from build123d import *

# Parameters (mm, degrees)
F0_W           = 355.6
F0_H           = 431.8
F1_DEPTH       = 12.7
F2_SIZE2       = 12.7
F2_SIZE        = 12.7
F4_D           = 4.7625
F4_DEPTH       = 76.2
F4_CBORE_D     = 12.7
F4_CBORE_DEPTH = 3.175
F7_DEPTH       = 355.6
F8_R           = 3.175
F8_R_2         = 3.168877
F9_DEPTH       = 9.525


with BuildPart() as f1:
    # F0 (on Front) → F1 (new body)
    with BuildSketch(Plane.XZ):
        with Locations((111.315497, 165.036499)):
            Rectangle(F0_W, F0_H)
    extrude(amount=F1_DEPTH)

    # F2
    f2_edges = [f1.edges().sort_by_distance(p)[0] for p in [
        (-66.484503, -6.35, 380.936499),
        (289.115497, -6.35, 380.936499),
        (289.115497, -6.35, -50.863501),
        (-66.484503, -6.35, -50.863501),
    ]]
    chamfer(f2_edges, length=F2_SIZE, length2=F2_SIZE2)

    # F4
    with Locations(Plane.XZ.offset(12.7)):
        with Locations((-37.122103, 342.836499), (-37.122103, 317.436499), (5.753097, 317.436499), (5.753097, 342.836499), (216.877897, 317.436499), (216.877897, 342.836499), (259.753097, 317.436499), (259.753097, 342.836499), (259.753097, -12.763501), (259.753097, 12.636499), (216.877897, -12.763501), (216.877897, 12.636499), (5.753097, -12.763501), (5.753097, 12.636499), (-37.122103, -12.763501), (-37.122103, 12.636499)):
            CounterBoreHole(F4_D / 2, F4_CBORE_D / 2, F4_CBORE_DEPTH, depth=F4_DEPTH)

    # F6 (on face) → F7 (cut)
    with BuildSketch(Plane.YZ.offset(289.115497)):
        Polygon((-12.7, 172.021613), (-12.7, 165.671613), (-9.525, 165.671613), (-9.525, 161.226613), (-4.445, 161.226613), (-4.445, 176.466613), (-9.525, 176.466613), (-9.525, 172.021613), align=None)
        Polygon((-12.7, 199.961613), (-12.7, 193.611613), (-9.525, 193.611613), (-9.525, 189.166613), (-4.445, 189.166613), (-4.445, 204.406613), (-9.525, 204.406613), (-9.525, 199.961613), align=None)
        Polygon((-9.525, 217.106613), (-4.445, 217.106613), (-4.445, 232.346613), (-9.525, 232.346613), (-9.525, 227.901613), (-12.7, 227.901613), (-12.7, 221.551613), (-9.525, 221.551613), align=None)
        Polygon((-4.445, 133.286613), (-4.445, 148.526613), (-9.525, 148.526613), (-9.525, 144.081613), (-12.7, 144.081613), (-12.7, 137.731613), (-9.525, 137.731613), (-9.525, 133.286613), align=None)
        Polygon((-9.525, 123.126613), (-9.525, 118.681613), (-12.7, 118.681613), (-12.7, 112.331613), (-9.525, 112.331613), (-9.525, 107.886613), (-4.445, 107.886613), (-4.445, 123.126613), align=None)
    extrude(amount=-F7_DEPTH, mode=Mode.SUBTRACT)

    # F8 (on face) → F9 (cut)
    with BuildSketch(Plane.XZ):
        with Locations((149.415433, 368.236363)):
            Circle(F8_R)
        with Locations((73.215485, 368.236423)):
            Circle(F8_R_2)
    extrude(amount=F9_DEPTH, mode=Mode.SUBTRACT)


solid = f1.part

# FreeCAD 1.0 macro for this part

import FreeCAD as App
import Part
import Sketcher

V = App.Vector
Q = App.Units.Quantity


def edges_at(feature, points):
    """Names of the edges that pass closest to the given points."""
    edges = feature.Shape.Edges
    near = lambda p: min(range(len(edges)), key=lambda i: edges[i].distToShape(Part.Vertex(*p))[0])
    return sorted({f"Edge{near(p) + 1}" for p in points})

doc = App.newDocument("Part")
body = doc.addObject("PartDesign::Body", "Body")

sketch1 = doc.addObject("Sketcher::SketchObject", "Sketch")
body.addObject(sketch1)
sketch1.AttachmentSupport = (doc.XZ_Plane, [""])
sketch1.MapMode = "FlatFace"
sketch1.addGeometry(Part.LineSegment(V(-66, 381, 0), V(-66, -51, 0)), False)
sketch1.addGeometry(Part.LineSegment(V(-66, -51, 0), V(289, -51, 0)), False)
sketch1.addGeometry(Part.LineSegment(V(289, -51, 0), V(289, 381, 0)), False)
sketch1.addGeometry(Part.LineSegment(V(289, 381, 0), V(-66, 381, 0)), False)
sketch1.addConstraint(Sketcher.Constraint("Coincident", 0, 2, 1, 1))
sketch1.addConstraint(Sketcher.Constraint("Coincident", 1, 2, 2, 1))
sketch1.addConstraint(Sketcher.Constraint("Coincident", 2, 2, 3, 1))
sketch1.addConstraint(Sketcher.Constraint("Coincident", 3, 2, 0, 1))
sketch1.addConstraint(Sketcher.Constraint("Vertical", 0))
sketch1.addConstraint(Sketcher.Constraint("Horizontal", 1))
sketch1.addConstraint(Sketcher.Constraint("Vertical", 2))
sketch1.addConstraint(Sketcher.Constraint("Horizontal", 3))
sketch1.addConstraint(Sketcher.Constraint("DistanceX", 1, 1, 1, 2, Q("14 in")))
sketch1.addConstraint(Sketcher.Constraint("DistanceY", 0, 2, 0, 1, Q("17 in")))
sketch1.addConstraint(Sketcher.Constraint("DistanceX", 0, 2, -1, 1, Q("2.6175001 in")))
sketch1.addConstraint(Sketcher.Constraint("DistanceY", 0, 2, -1, 1, Q("2.0025 in")))
pad1 = doc.addObject("PartDesign::Pad", "Pad")
body.addObject(pad1)
pad1.Profile = sketch1
pad1.Length = Q("0.5 in")
doc.recompute()

chamfer = doc.addObject("PartDesign::Chamfer", "Chamfer")
body.addObject(chamfer)
chamfer.Base = (pad1, edges_at(pad1, [
    (-66.485, -6.35, 380.936),
    (289.115, -6.35, 380.936),
    (289.115, -6.35, -50.864),
    (-66.485, -6.35, -50.864),
]))
chamfer.ChamferType = "Two distances"
chamfer.Size = Q("0.5 in")
chamfer.Size2 = Q("0.5 in")

sketch2 = doc.addObject("Sketcher::SketchObject", "Sketch001")
body.addObject(sketch2)
sketch2.AttachmentSupport = (doc.XZ_Plane, [""])
sketch2.MapMode = "FlatFace"
sketch2.AttachmentOffset = App.Placement(V(0, 0, 0.5 * 25.4), App.Rotation())
sketch2.addGeometry(Part.Circle(V(-37.1, 342.8, 0), V(0, 0, 1), 2.4), False)
sketch2.addGeometry(Part.Circle(V(-37.1, 317.4, 0), V(0, 0, 1), 2.4), False)
sketch2.addGeometry(Part.Circle(V(5.8, 317.4, 0), V(0, 0, 1), 2.4), False)
sketch2.addGeometry(Part.Circle(V(5.8, 342.8, 0), V(0, 0, 1), 2.4), False)
sketch2.addGeometry(Part.Circle(V(216.9, 317.4, 0), V(0, 0, 1), 2.4), False)
sketch2.addGeometry(Part.Circle(V(216.9, 342.8, 0), V(0, 0, 1), 2.4), False)
sketch2.addGeometry(Part.Circle(V(259.8, 317.4, 0), V(0, 0, 1), 2.4), False)
sketch2.addGeometry(Part.Circle(V(259.8, 342.8, 0), V(0, 0, 1), 2.4), False)
sketch2.addGeometry(Part.Circle(V(259.8, -12.8, 0), V(0, 0, 1), 2.4), False)
sketch2.addGeometry(Part.Circle(V(259.8, 12.6, 0), V(0, 0, 1), 2.4), False)
sketch2.addGeometry(Part.Circle(V(216.9, -12.8, 0), V(0, 0, 1), 2.4), False)
sketch2.addGeometry(Part.Circle(V(216.9, 12.6, 0), V(0, 0, 1), 2.4), False)
sketch2.addGeometry(Part.Circle(V(5.8, -12.8, 0), V(0, 0, 1), 2.4), False)
sketch2.addGeometry(Part.Circle(V(5.8, 12.6, 0), V(0, 0, 1), 2.4), False)
sketch2.addGeometry(Part.Circle(V(-37.1, -12.8, 0), V(0, 0, 1), 2.4), False)
sketch2.addGeometry(Part.Circle(V(-37.1, 12.6, 0), V(0, 0, 1), 2.4), False)
sketch2.addConstraint(Sketcher.Constraint("Equal", 0, 1))
sketch2.addConstraint(Sketcher.Constraint("Equal", 1, 2))
sketch2.addConstraint(Sketcher.Constraint("Equal", 2, 3))
sketch2.addConstraint(Sketcher.Constraint("Equal", 3, 4))
sketch2.addConstraint(Sketcher.Constraint("Equal", 4, 5))
sketch2.addConstraint(Sketcher.Constraint("Equal", 5, 6))
sketch2.addConstraint(Sketcher.Constraint("Equal", 6, 7))
sketch2.addConstraint(Sketcher.Constraint("Equal", 7, 8))
sketch2.addConstraint(Sketcher.Constraint("Equal", 8, 9))
sketch2.addConstraint(Sketcher.Constraint("Equal", 9, 10))
sketch2.addConstraint(Sketcher.Constraint("Equal", 10, 11))
sketch2.addConstraint(Sketcher.Constraint("Equal", 11, 12))
sketch2.addConstraint(Sketcher.Constraint("Equal", 12, 13))
sketch2.addConstraint(Sketcher.Constraint("Equal", 13, 14))
sketch2.addConstraint(Sketcher.Constraint("Equal", 14, 15))
sketch2.addConstraint(Sketcher.Constraint("Horizontal", 1, 3, 2, 3))
sketch2.addConstraint(Sketcher.Constraint("Horizontal", 0, 3, 3, 3))
sketch2.addConstraint(Sketcher.Constraint("Horizontal", 2, 3, 4, 3))
sketch2.addConstraint(Sketcher.Constraint("Horizontal", 3, 3, 5, 3))
sketch2.addConstraint(Sketcher.Constraint("Horizontal", 4, 3, 6, 3))
sketch2.addConstraint(Sketcher.Constraint("Horizontal", 5, 3, 7, 3))
sketch2.addConstraint(Sketcher.Constraint("Horizontal", 8, 3, 10, 3))
sketch2.addConstraint(Sketcher.Constraint("Horizontal", 9, 3, 11, 3))
sketch2.addConstraint(Sketcher.Constraint("Horizontal", 10, 3, 12, 3))
sketch2.addConstraint(Sketcher.Constraint("Horizontal", 11, 3, 13, 3))
sketch2.addConstraint(Sketcher.Constraint("Horizontal", 12, 3, 14, 3))
sketch2.addConstraint(Sketcher.Constraint("Horizontal", 13, 3, 15, 3))
sketch2.addConstraint(Sketcher.Constraint("Vertical", 0, 3, 1, 3))
sketch2.addConstraint(Sketcher.Constraint("Vertical", 2, 3, 3, 3))
sketch2.addConstraint(Sketcher.Constraint("Vertical", 4, 3, 5, 3))
sketch2.addConstraint(Sketcher.Constraint("Vertical", 6, 3, 7, 3))
sketch2.addConstraint(Sketcher.Constraint("Vertical", 7, 3, 8, 3))
sketch2.addConstraint(Sketcher.Constraint("Vertical", 8, 3, 9, 3))
sketch2.addConstraint(Sketcher.Constraint("Vertical", 5, 3, 10, 3))
sketch2.addConstraint(Sketcher.Constraint("Vertical", 10, 3, 11, 3))
sketch2.addConstraint(Sketcher.Constraint("Vertical", 3, 3, 12, 3))
sketch2.addConstraint(Sketcher.Constraint("Vertical", 12, 3, 13, 3))
sketch2.addConstraint(Sketcher.Constraint("Vertical", 1, 3, 14, 3))
sketch2.addConstraint(Sketcher.Constraint("Vertical", 14, 3, 15, 3))
sketch2.addConstraint(Sketcher.Constraint("Diameter", 0, Q("0.1875 in")))
sketch2.addConstraint(Sketcher.Constraint("DistanceY", 1, 3, 0, 3, Q("1 in")))
sketch2.addConstraint(Sketcher.Constraint("DistanceX", 1, 3, 4, 3, Q("10 in")))
sketch2.addConstraint(Sketcher.Constraint("DistanceX", 2, 3, 6, 3, Q("10 in")))
sketch2.addConstraint(Sketcher.Constraint("DistanceY", 8, 3, 6, 3, Q("13 in")))
sketch2.addConstraint(Sketcher.Constraint("DistanceY", 8, 3, 9, 3, Q("1 in")))
sketch2.addConstraint(Sketcher.Constraint("DistanceX", 1, 3, 2, 3, Q("1.688 in")))
sketch2.addConstraint(Sketcher.Constraint("DistanceX", 0, 3, -1, 1, Q("1.4615001 in")))
sketch2.addConstraint(Sketcher.Constraint("DistanceY", -1, 1, 0, 3, Q("13.4975 in")))
doc.recompute()
hole = doc.addObject("PartDesign::Hole", "Hole")
body.addObject(hole)
hole.Profile = sketch2
hole.ThreadType = "None"
hole.Diameter = Q("0.1875 in")
hole.DepthType = "Dimension"
hole.Depth = Q("3 in")
hole.DrillPoint = "Flat"
hole.HoleCutType = "Counterbore"
hole.HoleCutDiameter = Q("0.5 in")
hole.HoleCutDepth = Q("0.125 in")

sketch3 = doc.addObject("Sketcher::SketchObject", "Sketch002")
body.addObject(sketch3)
sketch3.AttachmentSupport = (doc.YZ_Plane, [""])
sketch3.MapMode = "FlatFace"
sketch3.AttachmentOffset = App.Placement(V(0, 0, 11.3824999 * 25.4), App.Rotation())
sketch3.addGeometry(Part.LineSegment(V(-12.7, 172, 0), V(-12.7, 165.7, 0)), False)
sketch3.addGeometry(Part.LineSegment(V(-12.7, 165.7, 0), V(-9.5, 165.7, 0)), False)
sketch3.addGeometry(Part.LineSegment(V(-9.5, 165.7, 0), V(-9.5, 161.2, 0)), False)
sketch3.addGeometry(Part.LineSegment(V(-9.5, 161.2, 0), V(-4.4, 161.2, 0)), False)
sketch3.addGeometry(Part.LineSegment(V(-4.4, 161.2, 0), V(-4.4, 176.5, 0)), False)
sketch3.addGeometry(Part.LineSegment(V(-4.4, 176.5, 0), V(-9.5, 176.5, 0)), False)
sketch3.addGeometry(Part.LineSegment(V(-9.5, 176.5, 0), V(-9.5, 172, 0)), False)
sketch3.addGeometry(Part.LineSegment(V(-9.5, 172, 0), V(-12.7, 172, 0)), False)
sketch3.addGeometry(Part.LineSegment(V(-12.7, 200, 0), V(-12.7, 193.6, 0)), False)
sketch3.addGeometry(Part.LineSegment(V(-12.7, 193.6, 0), V(-9.5, 193.6, 0)), False)
sketch3.addGeometry(Part.LineSegment(V(-9.5, 193.6, 0), V(-9.5, 189.2, 0)), False)
sketch3.addGeometry(Part.LineSegment(V(-9.5, 189.2, 0), V(-4.4, 189.2, 0)), False)
sketch3.addGeometry(Part.LineSegment(V(-4.4, 189.2, 0), V(-4.4, 204.4, 0)), False)
sketch3.addGeometry(Part.LineSegment(V(-4.4, 204.4, 0), V(-9.5, 204.4, 0)), False)
sketch3.addGeometry(Part.LineSegment(V(-9.5, 204.4, 0), V(-9.5, 200, 0)), False)
sketch3.addGeometry(Part.LineSegment(V(-9.5, 200, 0), V(-12.7, 200, 0)), False)
sketch3.addGeometry(Part.LineSegment(V(-9.5, 217.1, 0), V(-4.4, 217.1, 0)), False)
sketch3.addGeometry(Part.LineSegment(V(-4.4, 217.1, 0), V(-4.4, 232.3, 0)), False)
sketch3.addGeometry(Part.LineSegment(V(-4.4, 232.3, 0), V(-9.5, 232.3, 0)), False)
sketch3.addGeometry(Part.LineSegment(V(-9.5, 232.3, 0), V(-9.5, 227.9, 0)), False)
sketch3.addGeometry(Part.LineSegment(V(-9.5, 227.9, 0), V(-12.7, 227.9, 0)), False)
sketch3.addGeometry(Part.LineSegment(V(-12.7, 227.9, 0), V(-12.7, 221.6, 0)), False)
sketch3.addGeometry(Part.LineSegment(V(-12.7, 221.6, 0), V(-9.5, 221.6, 0)), False)
sketch3.addGeometry(Part.LineSegment(V(-9.5, 221.6, 0), V(-9.5, 217.1, 0)), False)
sketch3.addGeometry(Part.LineSegment(V(-4.4, 133.3, 0), V(-4.4, 148.5, 0)), False)
sketch3.addGeometry(Part.LineSegment(V(-4.4, 148.5, 0), V(-9.5, 148.5, 0)), False)
sketch3.addGeometry(Part.LineSegment(V(-9.5, 148.5, 0), V(-9.5, 144.1, 0)), False)
sketch3.addGeometry(Part.LineSegment(V(-9.5, 144.1, 0), V(-12.7, 144.1, 0)), False)
sketch3.addGeometry(Part.LineSegment(V(-12.7, 144.1, 0), V(-12.7, 137.7, 0)), False)
sketch3.addGeometry(Part.LineSegment(V(-12.7, 137.7, 0), V(-9.5, 137.7, 0)), False)
sketch3.addGeometry(Part.LineSegment(V(-9.5, 137.7, 0), V(-9.5, 133.3, 0)), False)
sketch3.addGeometry(Part.LineSegment(V(-9.5, 133.3, 0), V(-4.4, 133.3, 0)), False)
sketch3.addGeometry(Part.LineSegment(V(-9.5, 123.1, 0), V(-9.5, 118.7, 0)), False)
sketch3.addGeometry(Part.LineSegment(V(-9.5, 118.7, 0), V(-12.7, 118.7, 0)), False)
sketch3.addGeometry(Part.LineSegment(V(-12.7, 118.7, 0), V(-12.7, 112.3, 0)), False)
sketch3.addGeometry(Part.LineSegment(V(-12.7, 112.3, 0), V(-9.5, 112.3, 0)), False)
sketch3.addGeometry(Part.LineSegment(V(-9.5, 112.3, 0), V(-9.5, 107.9, 0)), False)
sketch3.addGeometry(Part.LineSegment(V(-9.5, 107.9, 0), V(-4.4, 107.9, 0)), False)
sketch3.addGeometry(Part.LineSegment(V(-4.4, 107.9, 0), V(-4.4, 123.1, 0)), False)
sketch3.addGeometry(Part.LineSegment(V(-4.4, 123.1, 0), V(-9.5, 123.1, 0)), False)
sketch3.addConstraint(Sketcher.Constraint("Coincident", 0, 2, 1, 1))
sketch3.addConstraint(Sketcher.Constraint("Coincident", 1, 2, 2, 1))
sketch3.addConstraint(Sketcher.Constraint("Coincident", 2, 2, 3, 1))
sketch3.addConstraint(Sketcher.Constraint("Coincident", 3, 2, 4, 1))
sketch3.addConstraint(Sketcher.Constraint("Coincident", 4, 2, 5, 1))
sketch3.addConstraint(Sketcher.Constraint("Coincident", 5, 2, 6, 1))
sketch3.addConstraint(Sketcher.Constraint("Coincident", 6, 2, 7, 1))
sketch3.addConstraint(Sketcher.Constraint("Coincident", 7, 2, 0, 1))
sketch3.addConstraint(Sketcher.Constraint("Coincident", 8, 2, 9, 1))
sketch3.addConstraint(Sketcher.Constraint("Coincident", 9, 2, 10, 1))
sketch3.addConstraint(Sketcher.Constraint("Coincident", 10, 2, 11, 1))
sketch3.addConstraint(Sketcher.Constraint("Coincident", 11, 2, 12, 1))
sketch3.addConstraint(Sketcher.Constraint("Coincident", 12, 2, 13, 1))
sketch3.addConstraint(Sketcher.Constraint("Coincident", 13, 2, 14, 1))
sketch3.addConstraint(Sketcher.Constraint("Coincident", 14, 2, 15, 1))
sketch3.addConstraint(Sketcher.Constraint("Coincident", 15, 2, 8, 1))
sketch3.addConstraint(Sketcher.Constraint("Coincident", 16, 2, 17, 1))
sketch3.addConstraint(Sketcher.Constraint("Coincident", 17, 2, 18, 1))
sketch3.addConstraint(Sketcher.Constraint("Coincident", 18, 2, 19, 1))
sketch3.addConstraint(Sketcher.Constraint("Coincident", 19, 2, 20, 1))
sketch3.addConstraint(Sketcher.Constraint("Coincident", 20, 2, 21, 1))
sketch3.addConstraint(Sketcher.Constraint("Coincident", 21, 2, 22, 1))
sketch3.addConstraint(Sketcher.Constraint("Coincident", 22, 2, 23, 1))
sketch3.addConstraint(Sketcher.Constraint("Coincident", 23, 2, 16, 1))
sketch3.addConstraint(Sketcher.Constraint("Coincident", 24, 2, 25, 1))
sketch3.addConstraint(Sketcher.Constraint("Coincident", 25, 2, 26, 1))
sketch3.addConstraint(Sketcher.Constraint("Coincident", 26, 2, 27, 1))
sketch3.addConstraint(Sketcher.Constraint("Coincident", 27, 2, 28, 1))
sketch3.addConstraint(Sketcher.Constraint("Coincident", 28, 2, 29, 1))
sketch3.addConstraint(Sketcher.Constraint("Coincident", 29, 2, 30, 1))
sketch3.addConstraint(Sketcher.Constraint("Coincident", 30, 2, 31, 1))
sketch3.addConstraint(Sketcher.Constraint("Coincident", 31, 2, 24, 1))
sketch3.addConstraint(Sketcher.Constraint("Coincident", 32, 2, 33, 1))
sketch3.addConstraint(Sketcher.Constraint("Coincident", 33, 2, 34, 1))
sketch3.addConstraint(Sketcher.Constraint("Coincident", 34, 2, 35, 1))
sketch3.addConstraint(Sketcher.Constraint("Coincident", 35, 2, 36, 1))
sketch3.addConstraint(Sketcher.Constraint("Coincident", 36, 2, 37, 1))
sketch3.addConstraint(Sketcher.Constraint("Coincident", 37, 2, 38, 1))
sketch3.addConstraint(Sketcher.Constraint("Coincident", 38, 2, 39, 1))
sketch3.addConstraint(Sketcher.Constraint("Coincident", 39, 2, 32, 1))
sketch3.addConstraint(Sketcher.Constraint("Vertical", 0))
sketch3.addConstraint(Sketcher.Constraint("Horizontal", 1))
sketch3.addConstraint(Sketcher.Constraint("Vertical", 2))
sketch3.addConstraint(Sketcher.Constraint("Horizontal", 3))
sketch3.addConstraint(Sketcher.Constraint("Vertical", 4))
sketch3.addConstraint(Sketcher.Constraint("Horizontal", 5))
sketch3.addConstraint(Sketcher.Constraint("Vertical", 6))
sketch3.addConstraint(Sketcher.Constraint("Horizontal", 7))
sketch3.addConstraint(Sketcher.Constraint("Vertical", 8))
sketch3.addConstraint(Sketcher.Constraint("Horizontal", 9))
sketch3.addConstraint(Sketcher.Constraint("Vertical", 10))
sketch3.addConstraint(Sketcher.Constraint("Horizontal", 11))
sketch3.addConstraint(Sketcher.Constraint("Vertical", 12))
sketch3.addConstraint(Sketcher.Constraint("Horizontal", 13))
sketch3.addConstraint(Sketcher.Constraint("Vertical", 14))
sketch3.addConstraint(Sketcher.Constraint("Horizontal", 15))
sketch3.addConstraint(Sketcher.Constraint("Horizontal", 16))
sketch3.addConstraint(Sketcher.Constraint("Vertical", 17))
sketch3.addConstraint(Sketcher.Constraint("Horizontal", 18))
sketch3.addConstraint(Sketcher.Constraint("Vertical", 19))
sketch3.addConstraint(Sketcher.Constraint("Horizontal", 20))
sketch3.addConstraint(Sketcher.Constraint("Vertical", 21))
sketch3.addConstraint(Sketcher.Constraint("Horizontal", 22))
sketch3.addConstraint(Sketcher.Constraint("Vertical", 23))
sketch3.addConstraint(Sketcher.Constraint("Vertical", 24))
sketch3.addConstraint(Sketcher.Constraint("Horizontal", 25))
sketch3.addConstraint(Sketcher.Constraint("Vertical", 26))
sketch3.addConstraint(Sketcher.Constraint("Horizontal", 27))
sketch3.addConstraint(Sketcher.Constraint("Vertical", 28))
sketch3.addConstraint(Sketcher.Constraint("Horizontal", 29))
sketch3.addConstraint(Sketcher.Constraint("Vertical", 30))
sketch3.addConstraint(Sketcher.Constraint("Horizontal", 31))
sketch3.addConstraint(Sketcher.Constraint("Vertical", 32))
sketch3.addConstraint(Sketcher.Constraint("Horizontal", 33))
sketch3.addConstraint(Sketcher.Constraint("Vertical", 34))
sketch3.addConstraint(Sketcher.Constraint("Horizontal", 35))
sketch3.addConstraint(Sketcher.Constraint("Vertical", 36))
sketch3.addConstraint(Sketcher.Constraint("Horizontal", 37))
sketch3.addConstraint(Sketcher.Constraint("Vertical", 38))
sketch3.addConstraint(Sketcher.Constraint("Horizontal", 39))
sketch3.addConstraint(Sketcher.Constraint("Vertical", 2, 2, 5, 2))
sketch3.addConstraint(Sketcher.Constraint("Vertical", 7, 2, 8, 2))
sketch3.addConstraint(Sketcher.Constraint("Vertical", 6, 2, 9, 2))
sketch3.addConstraint(Sketcher.Constraint("Vertical", 4, 2, 11, 2))
sketch3.addConstraint(Sketcher.Constraint("Vertical", 10, 2, 13, 2))
sketch3.addConstraint(Sketcher.Constraint("Vertical", 12, 2, 16, 2))
sketch3.addConstraint(Sketcher.Constraint("Vertical", 14, 2, 18, 2))
sketch3.addConstraint(Sketcher.Constraint("Vertical", 15, 2, 20, 2))
sketch3.addConstraint(Sketcher.Constraint("Vertical", 19, 2, 22, 2))
sketch3.addConstraint(Sketcher.Constraint("Vertical", 17, 2, 24, 2))
sketch3.addConstraint(Sketcher.Constraint("Vertical", 23, 2, 25, 2))
sketch3.addConstraint(Sketcher.Constraint("Vertical", 21, 2, 27, 2))
sketch3.addConstraint(Sketcher.Constraint("Vertical", 26, 2, 29, 2))
sketch3.addConstraint(Sketcher.Constraint("Vertical", 30, 2, 32, 2))
sketch3.addConstraint(Sketcher.Constraint("Vertical", 28, 2, 33, 2))
sketch3.addConstraint(Sketcher.Constraint("Vertical", 32, 2, 35, 2))
sketch3.addConstraint(Sketcher.Constraint("Vertical", 31, 2, 37, 2))
sketch3.addConstraint(Sketcher.Constraint("Equal", 2, 6))
sketch3.addConstraint(Sketcher.Constraint("Equal", 0, 8))
sketch3.addConstraint(Sketcher.Constraint("Equal", 6, 10))
sketch3.addConstraint(Sketcher.Constraint("Equal", 4, 12))
sketch3.addConstraint(Sketcher.Constraint("Equal", 12, 17))
sketch3.addConstraint(Sketcher.Constraint("Equal", 14, 19))
sketch3.addConstraint(Sketcher.Constraint("Equal", 8, 21))
sketch3.addConstraint(Sketcher.Constraint("Equal", 17, 24))
sketch3.addConstraint(Sketcher.Constraint("Equal", 23, 26))
sketch3.addConstraint(Sketcher.Constraint("Equal", 21, 28))
sketch3.addConstraint(Sketcher.Constraint("Equal", 30, 32))
sketch3.addConstraint(Sketcher.Constraint("Equal", 28, 34))
sketch3.addConstraint(Sketcher.Constraint("Equal", 32, 36))
sketch3.addConstraint(Sketcher.Constraint("DistanceX", 3, 1, 3, 2, Q("0.2 in")))
sketch3.addConstraint(Sketcher.Constraint("DistanceY", 4, 1, 4, 2, Q("0.6 in")))
sketch3.addConstraint(Sketcher.Constraint("DistanceY", 32, 2, 26, 2, Q("1 in")))
sketch3.addConstraint(Sketcher.Constraint("DistanceY", 0, 2, 0, 1, Q("0.25 in")))
sketch3.addConstraint(Sketcher.Constraint("DistanceX", 0, 2, -1, 1, Q("0.5 in")))
sketch3.addConstraint(Sketcher.Constraint("DistanceY", 0, 2, 8, 2, Q("1.1 in")))
sketch3.addConstraint(Sketcher.Constraint("DistanceY", 12, 2, 16, 2, Q("0.5 in")))
sketch3.addConstraint(Sketcher.Constraint("DistanceY", 24, 2, 3, 2, Q("0.5 in")))
sketch3.addConstraint(Sketcher.Constraint("DistanceX", 1, 1, 1, 2, Q("0.125 in")))
sketch3.addConstraint(Sketcher.Constraint("DistanceY", -1, 1, 0, 2, 165.671613))
pocket1 = doc.addObject("PartDesign::Pocket", "Pocket")
body.addObject(pocket1)
pocket1.Profile = sketch3
pocket1.Length = Q("14 in")

sketch4 = doc.addObject("Sketcher::SketchObject", "Sketch003")
body.addObject(sketch4)
sketch4.AttachmentSupport = (doc.XZ_Plane, [""])
sketch4.MapMode = "FlatFace"
sketch4.addGeometry(Part.Circle(V(149.4, 368.2, 0), V(0, 0, 1), 3.2), False)
sketch4.addGeometry(Part.Circle(V(73.2, 368.2, 0), V(0, 0, 1), 3.2), False)
sketch4.addConstraint(Sketcher.Constraint("Diameter", 0, Q("0.25 in")))
sketch4.addConstraint(Sketcher.Constraint("Diameter", 1, 6.337754))
sketch4.addConstraint(Sketcher.Constraint("DistanceX", 1, 3, 0, 3, 76.199948))
sketch4.addConstraint(Sketcher.Constraint("DistanceX", -1, 1, 0, 3, 149.415433))
sketch4.addConstraint(Sketcher.Constraint("DistanceY", -1, 1, 0, 3, 368.236363))
sketch4.addConstraint(Sketcher.Constraint("DistanceY", -1, 1, 1, 3, 368.236423))
pocket2 = doc.addObject("PartDesign::Pocket", "Pocket001")
body.addObject(pocket2)
pocket2.Profile = sketch4
pocket2.Length = Q("0.375 in")
pocket2.Reversed = True

doc.recompute()
